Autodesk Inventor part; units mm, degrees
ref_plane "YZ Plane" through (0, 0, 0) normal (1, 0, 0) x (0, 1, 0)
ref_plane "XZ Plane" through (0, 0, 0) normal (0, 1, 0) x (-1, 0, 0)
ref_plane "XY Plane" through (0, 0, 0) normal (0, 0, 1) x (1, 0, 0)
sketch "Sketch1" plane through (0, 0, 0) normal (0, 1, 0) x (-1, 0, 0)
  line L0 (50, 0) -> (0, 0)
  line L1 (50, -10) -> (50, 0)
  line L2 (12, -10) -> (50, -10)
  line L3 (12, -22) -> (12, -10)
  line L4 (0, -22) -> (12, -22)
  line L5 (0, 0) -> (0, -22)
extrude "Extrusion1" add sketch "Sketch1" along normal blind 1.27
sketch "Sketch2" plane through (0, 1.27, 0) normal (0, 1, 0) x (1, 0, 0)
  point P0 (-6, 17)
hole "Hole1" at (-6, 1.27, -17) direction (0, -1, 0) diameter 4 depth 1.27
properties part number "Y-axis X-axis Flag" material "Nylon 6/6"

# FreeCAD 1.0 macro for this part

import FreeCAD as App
import Part
import Sketcher

doc = App.newDocument("Part")
body = doc.addObject("PartDesign::Body", "Body")

# Sketch on XZ plane
sketch1 = body.newObject("Sketcher::SketchObject", "Sketch")
sketch1.AttachmentSupport = (doc.getObject("XZ_Plane"), [""])
sketch1.MapMode = "FlatFace"
sketch1.addGeometry([
    Part.LineSegment(App.Vector(-50, -10, 0), App.Vector(-50, 0, 0)),  # 0
    Part.LineSegment(App.Vector(-50, 0, 0), App.Vector(0, 0, 0)),  # 1
    Part.LineSegment(App.Vector(0, 0, 0), App.Vector(0, -22, 0)),  # 2
    Part.LineSegment(App.Vector(0, -22, 0), App.Vector(-12, -22, 0)),  # 3
    Part.LineSegment(App.Vector(-12, -22, 0), App.Vector(-12, -10, 0)),  # 4
    Part.LineSegment(App.Vector(-12, -10, 0), App.Vector(-50, -10, 0)),  # 5
], False)
sketch1.addConstraint([
    Sketcher.Constraint("Coincident", 0, 2, 1, 1),
    Sketcher.Constraint("Coincident", 1, 2, 2, 1),
    Sketcher.Constraint("Coincident", 2, 2, 3, 1),
    Sketcher.Constraint("Coincident", 3, 2, 4, 1),
    Sketcher.Constraint("Coincident", 4, 2, 5, 1),
    Sketcher.Constraint("Coincident", 5, 2, 0, 1),
    Sketcher.Constraint("Vertical", 0),
    Sketcher.Constraint("Horizontal", 1),
    Sketcher.Constraint("Vertical", 2),
    Sketcher.Constraint("Horizontal", 3),
    Sketcher.Constraint("Vertical", 4),
    Sketcher.Constraint("Horizontal", 5),
    Sketcher.Constraint("Coincident", 1, 2, -1, 1),
    Sketcher.Constraint("Equal", 3, 4),
    Sketcher.Constraint("DistanceX", 1, 1, 1, 2, 50.0),
    Sketcher.Constraint("DistanceX", 3, 2, 3, 1, 12.0),
    Sketcher.Constraint("DistanceY", 0, 1, 0, 2, 10.0),
])
pad1 = body.newObject("PartDesign::Pad", "Pad")
pad1.Profile = sketch1
pad1.Length = 1.27
pad1.Reversed = True

# Sketch on XZ plane
sketch2 = body.newObject("Sketcher::SketchObject", "Sketch001")
sketch2.AttachmentSupport = (doc.getObject("XZ_Plane"), [""])
sketch2.MapMode = "FlatFace"
sketch2.AttachmentOffset = App.Placement(App.Vector(0, 0, -1.27), App.Rotation())
sketch2.addGeometry(Part.Circle(App.Vector(-6, -17, 0), App.Vector(0, 0, 1), 2), False)
sketch2.addConstraint([
    Sketcher.Constraint("Diameter", 0, 4.0),
    Sketcher.Constraint("DistanceX", 0, 3, -1, 1, 6.0),
    Sketcher.Constraint("DistanceY", 0, 3, -1, 1, 17.0),
])
doc.recompute()
hole = body.newObject("PartDesign::Hole", "Hole")
hole.Profile = sketch2
hole.ThreadType = "None"
hole.Diameter = 4
hole.DepthType = "Dimension"
hole.Depth = 1.27
hole.DrillPoint = "Flat"
hole.Reversed = True

doc.recompute()
